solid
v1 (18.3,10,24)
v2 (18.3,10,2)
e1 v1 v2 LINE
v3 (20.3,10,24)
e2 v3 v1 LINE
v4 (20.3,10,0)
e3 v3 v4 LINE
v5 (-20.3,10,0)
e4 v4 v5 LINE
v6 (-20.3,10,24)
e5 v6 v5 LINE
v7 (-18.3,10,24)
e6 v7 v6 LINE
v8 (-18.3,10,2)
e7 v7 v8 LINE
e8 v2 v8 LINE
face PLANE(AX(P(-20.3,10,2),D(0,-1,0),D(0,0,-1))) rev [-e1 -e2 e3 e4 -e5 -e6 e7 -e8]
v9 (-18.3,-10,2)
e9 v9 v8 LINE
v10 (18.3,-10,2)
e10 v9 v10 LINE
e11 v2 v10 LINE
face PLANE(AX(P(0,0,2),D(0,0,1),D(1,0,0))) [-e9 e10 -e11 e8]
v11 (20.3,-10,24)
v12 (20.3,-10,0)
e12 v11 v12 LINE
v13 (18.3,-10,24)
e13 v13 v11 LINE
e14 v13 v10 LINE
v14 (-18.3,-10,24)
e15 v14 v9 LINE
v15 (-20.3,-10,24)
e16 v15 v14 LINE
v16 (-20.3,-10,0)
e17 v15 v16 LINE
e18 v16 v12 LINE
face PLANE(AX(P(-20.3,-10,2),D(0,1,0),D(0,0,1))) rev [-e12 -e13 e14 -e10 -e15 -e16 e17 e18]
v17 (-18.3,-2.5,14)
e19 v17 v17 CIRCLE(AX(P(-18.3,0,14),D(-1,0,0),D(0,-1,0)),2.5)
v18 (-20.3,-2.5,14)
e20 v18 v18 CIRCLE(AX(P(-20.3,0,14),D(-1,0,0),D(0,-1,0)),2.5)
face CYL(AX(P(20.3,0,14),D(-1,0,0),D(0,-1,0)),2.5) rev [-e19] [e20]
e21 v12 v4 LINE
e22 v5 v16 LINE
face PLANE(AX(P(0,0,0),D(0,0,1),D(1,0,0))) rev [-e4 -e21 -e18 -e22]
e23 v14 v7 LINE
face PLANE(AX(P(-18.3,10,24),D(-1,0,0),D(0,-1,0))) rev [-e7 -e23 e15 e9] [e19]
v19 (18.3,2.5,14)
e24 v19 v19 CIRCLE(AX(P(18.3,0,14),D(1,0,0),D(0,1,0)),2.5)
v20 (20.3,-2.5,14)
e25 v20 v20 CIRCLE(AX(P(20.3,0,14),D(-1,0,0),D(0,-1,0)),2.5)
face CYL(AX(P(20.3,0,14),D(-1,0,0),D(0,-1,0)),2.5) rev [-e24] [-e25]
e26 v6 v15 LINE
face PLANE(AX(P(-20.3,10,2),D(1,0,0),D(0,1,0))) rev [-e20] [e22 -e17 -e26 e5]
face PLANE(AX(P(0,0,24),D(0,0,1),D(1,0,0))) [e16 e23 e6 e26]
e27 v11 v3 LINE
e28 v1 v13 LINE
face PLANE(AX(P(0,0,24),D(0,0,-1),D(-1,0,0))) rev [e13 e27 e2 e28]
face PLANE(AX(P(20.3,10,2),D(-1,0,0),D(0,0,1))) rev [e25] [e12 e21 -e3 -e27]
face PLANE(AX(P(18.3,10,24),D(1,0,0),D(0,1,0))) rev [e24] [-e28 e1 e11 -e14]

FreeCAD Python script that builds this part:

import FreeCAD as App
import Part
import Sketcher
Q = App.Units.Quantity

doc = App.newDocument("Part")
body = doc.addObject("PartDesign::Body", "Body")

# Sketch on XY plane
sketch1 = body.newObject("Sketcher::SketchObject", "Sketch")
sketch1.AttachmentSupport = (doc.getObject("XY_Plane"), [""])
sketch1.MapMode = "FlatFace"
sketch1.addGeometry([
    Part.LineSegment(App.Vector(-20, 10, 0), App.Vector(-20, -10, 0)),
    Part.LineSegment(App.Vector(-20, -10, 0), App.Vector(20, -10, 0)),
    Part.LineSegment(App.Vector(20, -10, 0), App.Vector(20, 10, 0)),
    Part.LineSegment(App.Vector(20, 10, 0), App.Vector(-20, 10, 0)),
], False)
sketch1.addConstraint([
    Sketcher.Constraint("Coincident", 0, 2, 1, 1),
    Sketcher.Constraint("Coincident", 1, 2, 2, 1),
    Sketcher.Constraint("Coincident", 2, 2, 3, 1),
    Sketcher.Constraint("Coincident", 3, 2, 0, 1),
    Sketcher.Constraint("Vertical", 0),
    Sketcher.Constraint("Horizontal", 1),
    Sketcher.Constraint("Vertical", 2),
    Sketcher.Constraint("Horizontal", 3),
    Sketcher.Constraint("Symmetric", 0, 2, 2, 2, -1, 1),
    Sketcher.Constraint("DistanceY", 0, 2, 0, 1, Q("20 mm")),
    Sketcher.Constraint("DistanceX", 1, 1, 1, 2, Q("40.6 mm")),
])
pad1 = body.newObject("PartDesign::Pad", "Pad")
pad1.Profile = sketch1
pad1.Length = 2

# Sketch on XY plane
sketch2 = body.newObject("Sketcher::SketchObject", "Sketch001")
sketch2.AttachmentSupport = (doc.getObject("XY_Plane"), [""])
sketch2.MapMode = "FlatFace"
sketch2.AttachmentOffset = App.Placement(App.Vector(0, 0, 2), App.Rotation())
sketch2.addGeometry([
    Part.LineSegment(App.Vector(-20.3, 10, 0), App.Vector(-20.3, -10, 0)),  # 0
    Part.LineSegment(App.Vector(-20.3, -10, 0), App.Vector(-18.3, -10, 0)),  # 1
    Part.LineSegment(App.Vector(-18.3, -10, 0), App.Vector(-18.3, 10, 0)),  # 2
    Part.LineSegment(App.Vector(-18.3, 10, 0), App.Vector(-20.3, 10, 0)),  # 3
    Part.LineSegment(App.Vector(18.3, 10, 0), App.Vector(18.3, -10, 0)),  # 4
    Part.LineSegment(App.Vector(18.3, -10, 0), App.Vector(20.3, -10, 0)),  # 5
    Part.LineSegment(App.Vector(20.3, -10, 0), App.Vector(20.3, 10, 0)),  # 6
    Part.LineSegment(App.Vector(20.3, 10, 0), App.Vector(18.3, 10, 0)),  # 7
], False)
sketch2.addConstraint([
    Sketcher.Constraint("Coincident", 0, 2, 1, 1),
    Sketcher.Constraint("Coincident", 1, 2, 2, 1),
    Sketcher.Constraint("Coincident", 2, 2, 3, 1),
    Sketcher.Constraint("Coincident", 3, 2, 0, 1),
    Sketcher.Constraint("Coincident", 4, 2, 5, 1),
    Sketcher.Constraint("Coincident", 5, 2, 6, 1),
    Sketcher.Constraint("Coincident", 6, 2, 7, 1),
    Sketcher.Constraint("Coincident", 7, 2, 4, 1),
    Sketcher.Constraint("Vertical", 0),
    Sketcher.Constraint("Horizontal", 1),
    Sketcher.Constraint("Vertical", 2),
    Sketcher.Constraint("Horizontal", 3),
    Sketcher.Constraint("Vertical", 4),
    Sketcher.Constraint("Horizontal", 5),
    Sketcher.Constraint("Vertical", 6),
    Sketcher.Constraint("Horizontal", 7),
    Sketcher.Constraint("Symmetric", 2, 2, 4, 2, -1, 1),
    Sketcher.Constraint("Symmetric", 0, 2, 6, 2, -1, 1),
    Sketcher.Constraint("Horizontal", 1, 2, 4, 2),
    Sketcher.Constraint("DistanceX", 1, 1, 1, 2, Q("2 mm")),
    Sketcher.Constraint("DistanceY", 0, 2, 0, 1, Q("20 mm")),
    Sketcher.Constraint("DistanceX", 0, 2, -1, 1, Q("20.3 mm")),
])
pad2 = body.newObject("PartDesign::Pad", "Pad001")
pad2.Profile = sketch2
pad2.Length = 22

# Sketch on YZ plane
sketch3 = body.newObject("Sketcher::SketchObject", "Sketch002")
sketch3.AttachmentSupport = (doc.getObject("YZ_Plane"), [""])
sketch3.MapMode = "FlatFace"
sketch3.AttachmentOffset = App.Placement(App.Vector(0, 0, -20.3), App.Rotation())
sketch3.addGeometry(Part.Circle(App.Vector(0, 14, 0), App.Vector(0, 0, 1), 2.5), False)
sketch3.addConstraint([
    Sketcher.Constraint("PointOnObject", 0, 3, -2),
    Sketcher.Constraint("Diameter", 0, Q("5 mm")),
    Sketcher.Constraint("DistanceY", -1, 1, 0, 3, Q("14 mm")),
])
pocket1 = body.newObject("PartDesign::Pocket", "Pocket")
pocket1.Profile = sketch3
pocket1.Type = "ThroughAll"
pocket1.Reversed = True

doc.recompute()
